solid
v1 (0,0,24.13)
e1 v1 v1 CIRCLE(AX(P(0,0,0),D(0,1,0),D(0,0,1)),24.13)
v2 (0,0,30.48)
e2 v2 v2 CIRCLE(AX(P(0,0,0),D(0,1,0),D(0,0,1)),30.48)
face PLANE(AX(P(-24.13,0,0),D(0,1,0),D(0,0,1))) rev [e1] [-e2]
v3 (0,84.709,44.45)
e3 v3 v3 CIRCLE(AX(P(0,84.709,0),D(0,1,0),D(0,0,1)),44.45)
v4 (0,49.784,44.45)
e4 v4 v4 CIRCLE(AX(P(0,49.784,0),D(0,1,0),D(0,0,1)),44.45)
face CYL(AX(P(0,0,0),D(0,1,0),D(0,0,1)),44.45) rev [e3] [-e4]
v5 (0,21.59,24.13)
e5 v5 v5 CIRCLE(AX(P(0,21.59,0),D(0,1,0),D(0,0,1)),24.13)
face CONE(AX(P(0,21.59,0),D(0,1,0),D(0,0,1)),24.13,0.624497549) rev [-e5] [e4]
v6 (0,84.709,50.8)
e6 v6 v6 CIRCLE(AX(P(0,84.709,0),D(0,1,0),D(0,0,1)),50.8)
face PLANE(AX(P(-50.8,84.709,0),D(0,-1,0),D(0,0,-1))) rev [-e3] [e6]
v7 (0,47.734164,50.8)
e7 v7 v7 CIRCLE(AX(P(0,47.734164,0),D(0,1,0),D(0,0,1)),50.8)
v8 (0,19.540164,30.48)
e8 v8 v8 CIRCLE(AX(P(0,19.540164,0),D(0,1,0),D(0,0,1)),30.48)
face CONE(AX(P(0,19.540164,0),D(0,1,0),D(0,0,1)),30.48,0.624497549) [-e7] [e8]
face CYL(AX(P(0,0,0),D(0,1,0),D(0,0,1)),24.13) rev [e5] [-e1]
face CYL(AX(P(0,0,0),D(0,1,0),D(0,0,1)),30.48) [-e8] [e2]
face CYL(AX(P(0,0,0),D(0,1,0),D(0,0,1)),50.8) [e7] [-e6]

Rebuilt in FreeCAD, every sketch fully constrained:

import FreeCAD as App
import Part
import Sketcher

V = App.Vector
Q = App.Units.Quantity

doc = App.newDocument("Part")
body = doc.addObject("PartDesign::Body", "Body")

sketch1 = doc.addObject("Sketcher::SketchObject", "Sketch")
body.addObject(sketch1)
sketch1.AttachmentSupport = (doc.XY_Plane, [""])
sketch1.MapMode = "FlatFace"
sketch1.addGeometry(Part.LineSegment(V(-24, 0, 0), V(-24, 22, 0)), False)
sketch1.addGeometry(Part.LineSegment(V(-24, 22, 0), V(-44, 50, 0)), False)
sketch1.addGeometry(Part.LineSegment(V(-44, 50, 0), V(-44, 85, 0)), False)
sketch1.addGeometry(Part.LineSegment(V(-44, 85, 0), V(-51, 85, 0)), False)
sketch1.addGeometry(Part.LineSegment(V(-51, 85, 0), V(-51, 48, 0)), False)
sketch1.addGeometry(Part.LineSegment(V(-51, 48, 0), V(-30, 20, 0)), False)
sketch1.addGeometry(Part.LineSegment(V(-30, 20, 0), V(-30, 0, 0)), False)
sketch1.addGeometry(Part.LineSegment(V(-30, 0, 0), V(-24, 0, 0)), False)
sketch1.addConstraint(Sketcher.Constraint("Coincident", 0, 2, 1, 1))
sketch1.addConstraint(Sketcher.Constraint("Coincident", 1, 2, 2, 1))
sketch1.addConstraint(Sketcher.Constraint("Coincident", 2, 2, 3, 1))
sketch1.addConstraint(Sketcher.Constraint("Coincident", 3, 2, 4, 1))
sketch1.addConstraint(Sketcher.Constraint("Coincident", 4, 2, 5, 1))
sketch1.addConstraint(Sketcher.Constraint("Coincident", 5, 2, 6, 1))
sketch1.addConstraint(Sketcher.Constraint("Coincident", 6, 2, 7, 1))
sketch1.addConstraint(Sketcher.Constraint("Coincident", 7, 2, 0, 1))
sketch1.addConstraint(Sketcher.Constraint("Vertical", 0))
sketch1.addConstraint(Sketcher.Constraint("Vertical", 2))
sketch1.addConstraint(Sketcher.Constraint("Horizontal", 3))
sketch1.addConstraint(Sketcher.Constraint("Vertical", 4))
sketch1.addConstraint(Sketcher.Constraint("Vertical", 6))
sketch1.addConstraint(Sketcher.Constraint("Horizontal", 7))
sketch1.addConstraint(Sketcher.Constraint("PointOnObject", 6, 2, -1))
sketch1.addConstraint(Sketcher.Constraint("Parallel", 1, 5))
sketch1.addConstraint(Sketcher.Constraint("Equal", 3, 7))
sketch1.addConstraint(Sketcher.Constraint("DistanceX", 3, 2, -1, 1, Q("2 in")))
sketch1.addConstraint(Sketcher.Constraint("DistanceX", 3, 2, 3, 1, Q("0.25 in")))
sketch1.addConstraint(Sketcher.Constraint("DistanceY", 0, 1, 0, 2, Q("0.85 in")))
sketch1.addConstraint(Sketcher.Constraint("DistanceX", 5, 2, -1, 1, Q("1.2 in")))
sketch1.addConstraint(Sketcher.Constraint("DistanceY", 2, 1, 2, 2, Q("1.375 in")))
sketch1.addConstraint(Sketcher.Constraint("DistanceY", -1, 1, 1, 2, Q("1.96 in")))
sketch1.addConstraint(Sketcher.Constraint("DistanceY", 4, 2, 4, 1, Q("36.974836 mm")))
revolution = doc.addObject("PartDesign::Revolution", "Revolution")
body.addObject(revolution)
revolution.Profile = sketch1
revolution.ReferenceAxis = (sketch1, ["V_Axis"])
revolution.Angle = 360

doc.recompute()
